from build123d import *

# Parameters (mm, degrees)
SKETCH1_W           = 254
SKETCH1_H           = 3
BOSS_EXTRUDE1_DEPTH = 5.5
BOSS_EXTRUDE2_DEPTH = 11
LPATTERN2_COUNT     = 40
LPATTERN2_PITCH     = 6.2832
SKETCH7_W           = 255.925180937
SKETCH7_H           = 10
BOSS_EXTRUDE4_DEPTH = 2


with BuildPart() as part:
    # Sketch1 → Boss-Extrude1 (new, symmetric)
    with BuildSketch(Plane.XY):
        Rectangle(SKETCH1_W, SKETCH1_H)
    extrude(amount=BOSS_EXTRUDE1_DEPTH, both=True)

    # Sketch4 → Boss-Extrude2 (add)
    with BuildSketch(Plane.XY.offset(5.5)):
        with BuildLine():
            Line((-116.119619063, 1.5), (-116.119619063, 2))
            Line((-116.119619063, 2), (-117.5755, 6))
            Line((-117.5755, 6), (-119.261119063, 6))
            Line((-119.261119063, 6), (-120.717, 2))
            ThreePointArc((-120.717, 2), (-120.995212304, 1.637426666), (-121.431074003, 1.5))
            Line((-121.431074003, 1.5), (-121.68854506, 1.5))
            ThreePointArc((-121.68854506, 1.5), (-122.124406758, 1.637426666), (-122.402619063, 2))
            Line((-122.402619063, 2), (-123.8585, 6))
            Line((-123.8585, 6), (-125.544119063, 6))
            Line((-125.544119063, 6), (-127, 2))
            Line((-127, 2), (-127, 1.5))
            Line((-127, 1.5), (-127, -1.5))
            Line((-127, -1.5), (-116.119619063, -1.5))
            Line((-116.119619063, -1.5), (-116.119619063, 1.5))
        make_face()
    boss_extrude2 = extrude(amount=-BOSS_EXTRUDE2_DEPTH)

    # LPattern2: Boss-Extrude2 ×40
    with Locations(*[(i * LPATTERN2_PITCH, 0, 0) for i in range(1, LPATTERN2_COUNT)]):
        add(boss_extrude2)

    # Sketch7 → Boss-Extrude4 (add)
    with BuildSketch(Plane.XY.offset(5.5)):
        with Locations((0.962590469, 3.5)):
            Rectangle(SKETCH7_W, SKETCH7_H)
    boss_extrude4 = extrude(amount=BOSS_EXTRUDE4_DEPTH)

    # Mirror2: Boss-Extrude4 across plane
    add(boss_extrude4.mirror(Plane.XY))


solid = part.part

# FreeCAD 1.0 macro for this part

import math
import FreeCAD as App
import Part
import Sketcher
from FreeCAD import Vector
Q = App.Units.Quantity


def add_polygon(sketch, points):
    """Adds a closed chain of lines whose ends are joined by coincident constraints."""
    first, n = sketch.GeometryCount, len(points)
    for a, b in zip(points, points[1:] + points[:1]):
        sketch.addGeometry(Part.LineSegment(App.Vector(*a, 0), App.Vector(*b, 0)), False)
    for i in range(n):
        sketch.addConstraint(Sketcher.Constraint("Coincident", first + i, 2, first + (i + 1) % n, 1))

doc = App.newDocument("Part")
body = doc.addObject("PartDesign::Body", "Body")

# Sketch on XY plane
sketch1 = body.newObject("Sketcher::SketchObject", "Sketch")
sketch1.AttachmentSupport = (doc.getObject("XY_Plane"), [""])
sketch1.MapMode = "FlatFace"
add_polygon(sketch1, [(-127, 1.5), (-127, -1.5), (127, -1.5), (127, 1.5)])  # lines 0-3
sketch1.addConstraint([
    Sketcher.Constraint("Vertical", 0),
    Sketcher.Constraint("Horizontal", 1),
    Sketcher.Constraint("Vertical", 2),
    Sketcher.Constraint("Horizontal", 3),
    Sketcher.Constraint("Symmetric", 0, 2, 2, 2, -1, 1),
    Sketcher.Constraint("DistanceX", 1, 1, 1, 2, 254.0),
    Sketcher.Constraint("DistanceY", 0, 2, 0, 1, 3.0),
])
pad1 = body.newObject("PartDesign::Pad", "Pad")
pad1.Profile = sketch1
pad1.Length = 11
pad1.Midplane = True

# Sketch on XY plane
sketch2 = body.newObject("Sketcher::SketchObject", "Sketch001")
sketch2.AttachmentSupport = (doc.getObject("XY_Plane"), [""])
sketch2.MapMode = "FlatFace"
sketch2.AttachmentOffset = App.Placement(Vector(0, 0, 5.5), App.Rotation())
sketch2.addGeometry([
    Part.LineSegment(Vector(-116.12, 2, 0), Vector(-117.58, 6, 0)),  # 0
    Part.LineSegment(Vector(-117.58, 6, 0), Vector(-119.26, 6, 0)),  # 1
    Part.LineSegment(Vector(-119.26, 6, 0), Vector(-120.72, 2, 0)),  # 2
    Part.ArcOfCircle(Part.Circle(Vector(-121.43, 2.26, 0), Vector(0, 0, 1), 0.76), math.radians(-90), math.radians(-20)),  # 3
    Part.LineSegment(Vector(-121.43, 1.5, 0), Vector(-121.69, 1.5, 0)),  # 4
    Part.ArcOfCircle(Part.Circle(Vector(-121.69, 2.26, 0), Vector(0, 0, 1), 0.76), math.radians(-160), math.radians(-90)),  # 5
    Part.LineSegment(Vector(-122.4, 2, 0), Vector(-123.86, 6, 0)),  # 6
    Part.LineSegment(Vector(-123.86, 6, 0), Vector(-125.54, 6, 0)),  # 7
    Part.LineSegment(Vector(-125.54, 6, 0), Vector(-127, 2, 0)),  # 8
    Part.LineSegment(Vector(-127, 2, 0), Vector(-127, -1.5, 0)),  # 9
    Part.LineSegment(Vector(-127, -1.5, 0), Vector(-116.12, -1.5, 0)),  # 10
    Part.LineSegment(Vector(-116.12, -1.5, 0), Vector(-116.12, 2, 0)),  # 11
], False)
sketch2.addConstraint([
    Sketcher.Constraint("Coincident", 0, 2, 1, 1),
    Sketcher.Constraint("Coincident", 1, 2, 2, 1),
    Sketcher.Constraint("Tangent", 2, 2, 3, 2),
    Sketcher.Constraint("Tangent", 3, 1, 4, 1),
    Sketcher.Constraint("Tangent", 4, 2, 5, 2),
    Sketcher.Constraint("Tangent", 5, 1, 6, 1),
    Sketcher.Constraint("Coincident", 6, 2, 7, 1),
    Sketcher.Constraint("Coincident", 7, 2, 8, 1),
    Sketcher.Constraint("Coincident", 8, 2, 9, 1),
    Sketcher.Constraint("Coincident", 9, 2, 10, 1),
    Sketcher.Constraint("Coincident", 10, 2, 11, 1),
    Sketcher.Constraint("Coincident", 11, 2, 0, 1),
    Sketcher.Constraint("Horizontal", 1),
    Sketcher.Constraint("Horizontal", 4),
    Sketcher.Constraint("Horizontal", 7),
    Sketcher.Constraint("Vertical", 9),
    Sketcher.Constraint("Horizontal", 10),
    Sketcher.Constraint("Vertical", 11),
    Sketcher.Constraint("Equal", 3, 5),
    Sketcher.Constraint("Parallel", 0, 6),
    Sketcher.Constraint("Parallel", 2, 8),
    Sketcher.Constraint("Horizontal", 2, 2, 5, 1),
    Sketcher.Constraint("Horizontal", 1, 2, 6, 2),
    Sketcher.Constraint("Horizontal", 5, 1, 8, 2),
    Sketcher.Constraint("Horizontal", 8, 2, 11, 2),
    Sketcher.Constraint("Equal", 1, 7),
    Sketcher.Constraint("Angle", 0, Q("110 deg")),
    Sketcher.Constraint("DistanceY", 9, 2, 9, 1, 3.5),
    Sketcher.Constraint("DistanceY", -1, 1, 0, 2, 6.0),
    Sketcher.Constraint("DistanceY", -1, 1, 2, 2, 2.0),
    Sketcher.Constraint("DistanceX", 8, 2, -1, 1, 127.0),
    Sketcher.Constraint("DistanceY", 9, 2, 4, 2, 3.0),
    Sketcher.Constraint("DistanceX", 2, 2, -1, 1, 120.717),
    Sketcher.Constraint("DistanceX", 1, 2, 1, 1, 1.685619),
])
pad2 = body.newObject("PartDesign::Pad", "Pad001")
pad2.Profile = sketch2
pad2.Length = 11
pad2.Reversed = True
doc.recompute()

linearpattern = body.newObject("PartDesign::LinearPattern", "LinearPattern")
linearpattern.Originals = [pad2]
linearpattern.Direction = (doc.getObject("X_Axis"), [""])
linearpattern.Mode = "offset"
linearpattern.Offset = 6.2832
linearpattern.Occurrences = 40
body.Tip = linearpattern

# Sketch on XY plane
sketch3 = body.newObject("Sketcher::SketchObject", "Sketch002")
sketch3.AttachmentSupport = (doc.getObject("XY_Plane"), [""])
sketch3.MapMode = "FlatFace"
sketch3.AttachmentOffset = App.Placement(Vector(0, 0, 5.5), App.Rotation())
add_polygon(sketch3, [(-127, 8), (-127, -2), (129, -2), (129, 8)])  # lines 0-3
sketch3.addConstraint([
    Sketcher.Constraint("Vertical", 0),
    Sketcher.Constraint("Horizontal", 1),
    Sketcher.Constraint("Vertical", 2),
    Sketcher.Constraint("Horizontal", 3),
    Sketcher.Constraint("DistanceY", 0, 2, 0, 1, 10.0),
    Sketcher.Constraint("DistanceX", 0, 2, -1, 1, 127.0),
    Sketcher.Constraint("DistanceY", 0, 2, -1, 1, 1.5),
    Sketcher.Constraint("DistanceX", 1, 1, 1, 2, 255.925181),
])
pad3 = body.newObject("PartDesign::Pad", "Pad002")
pad3.Profile = sketch3
pad3.Length = 2
doc.recompute()

mirrored = body.newObject("PartDesign::Mirrored", "Mirrored")
mirrored.Originals = [pad3]
mirrored.MirrorPlane = (doc.getObject("XY_Plane"), [""])
body.Tip = mirrored

doc.recompute()
